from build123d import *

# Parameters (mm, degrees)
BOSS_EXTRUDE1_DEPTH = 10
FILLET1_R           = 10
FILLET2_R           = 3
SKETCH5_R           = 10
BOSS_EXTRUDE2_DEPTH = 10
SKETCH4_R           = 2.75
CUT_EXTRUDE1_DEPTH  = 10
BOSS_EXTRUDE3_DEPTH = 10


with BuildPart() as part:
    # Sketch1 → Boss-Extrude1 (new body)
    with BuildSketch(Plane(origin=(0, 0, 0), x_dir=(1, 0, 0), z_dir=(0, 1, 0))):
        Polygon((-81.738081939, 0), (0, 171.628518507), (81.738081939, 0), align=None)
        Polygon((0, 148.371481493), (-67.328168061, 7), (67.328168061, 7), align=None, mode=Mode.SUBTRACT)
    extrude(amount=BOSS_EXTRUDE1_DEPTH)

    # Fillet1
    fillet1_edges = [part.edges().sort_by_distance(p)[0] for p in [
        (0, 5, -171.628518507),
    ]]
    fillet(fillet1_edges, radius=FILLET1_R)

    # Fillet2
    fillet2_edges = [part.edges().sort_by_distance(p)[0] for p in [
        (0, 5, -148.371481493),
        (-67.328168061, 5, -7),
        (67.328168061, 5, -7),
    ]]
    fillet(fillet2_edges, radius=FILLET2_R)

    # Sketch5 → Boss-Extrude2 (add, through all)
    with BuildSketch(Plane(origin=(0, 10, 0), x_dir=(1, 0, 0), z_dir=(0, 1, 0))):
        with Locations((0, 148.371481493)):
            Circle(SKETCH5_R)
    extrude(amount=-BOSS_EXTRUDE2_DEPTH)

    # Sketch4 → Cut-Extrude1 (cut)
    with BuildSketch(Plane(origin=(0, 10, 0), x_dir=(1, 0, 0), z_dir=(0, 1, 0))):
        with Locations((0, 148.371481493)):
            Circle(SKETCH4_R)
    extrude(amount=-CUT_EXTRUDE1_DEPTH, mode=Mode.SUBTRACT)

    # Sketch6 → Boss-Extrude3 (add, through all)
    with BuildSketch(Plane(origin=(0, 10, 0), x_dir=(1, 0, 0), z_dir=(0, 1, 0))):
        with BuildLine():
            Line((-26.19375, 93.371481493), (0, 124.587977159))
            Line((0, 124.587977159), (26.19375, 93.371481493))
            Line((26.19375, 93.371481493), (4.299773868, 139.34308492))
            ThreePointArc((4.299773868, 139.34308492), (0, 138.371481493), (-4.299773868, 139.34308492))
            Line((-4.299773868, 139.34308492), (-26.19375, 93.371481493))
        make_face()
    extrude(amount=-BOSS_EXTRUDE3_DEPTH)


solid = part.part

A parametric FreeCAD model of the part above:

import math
import FreeCAD as App
import Part
import Sketcher

V = App.Vector
Q = App.Units.Quantity


def edges_at(feature, points):
    """Names of the edges that pass closest to the given points."""
    edges = feature.Shape.Edges
    near = lambda p: min(range(len(edges)), key=lambda i: edges[i].distToShape(Part.Vertex(*p))[0])
    return sorted({f"Edge{near(p) + 1}" for p in points})

doc = App.newDocument("Part")
body = doc.addObject("PartDesign::Body", "Body")

# Sketch on XZ plane
sketch1 = body.newObject("Sketcher::SketchObject", "Sketch")
sketch1.AttachmentSupport = (doc.getObject("XZ_Plane"), [""])
sketch1.MapMode = "FlatFace"
sketch1.addGeometry(Part.LineSegment(V(0, -172, 0), V(-82, 0, 0)), False)
sketch1.addGeometry(Part.LineSegment(V(-82, 0, 0), V(82, 0, 0)), False)
sketch1.addGeometry(Part.LineSegment(V(82, 0, 0), V(0, -172, 0)), False)
sketch1.addGeometry(Part.LineSegment(V(0, -148, 0), V(67, -7, 0)), False)
sketch1.addGeometry(Part.LineSegment(V(67, -7, 0), V(-67, -7, 0)), False)
sketch1.addGeometry(Part.LineSegment(V(-67, -7, 0), V(0, -148, 0)), False)
sketch1.addConstraint(Sketcher.Constraint("Coincident", 0, 2, 1, 1))
sketch1.addConstraint(Sketcher.Constraint("Coincident", 1, 2, 2, 1))
sketch1.addConstraint(Sketcher.Constraint("Coincident", 2, 2, 0, 1))
sketch1.addConstraint(Sketcher.Constraint("Coincident", 3, 2, 4, 1))
sketch1.addConstraint(Sketcher.Constraint("Coincident", 4, 2, 5, 1))
sketch1.addConstraint(Sketcher.Constraint("Coincident", 5, 2, 3, 1))
sketch1.addConstraint(Sketcher.Constraint("Horizontal", 1))
sketch1.addConstraint(Sketcher.Constraint("Horizontal", 4))
sketch1.addConstraint(Sketcher.Constraint("Symmetric", 0, 2, 1, 2, -1, 1))
sketch1.addConstraint(Sketcher.Constraint("PointOnObject", 2, 2, -2))
sketch1.addConstraint(Sketcher.Constraint("PointOnObject", 5, 2, -2))
sketch1.addConstraint(Sketcher.Constraint("Parallel", 2, 3))
sketch1.addConstraint(Sketcher.Constraint("Parallel", 0, 5))
sketch1.addConstraint(Sketcher.Constraint("DistanceY", 3, 2, -1, 1, 7.0))
sketch1.addConstraint(Sketcher.Constraint("Distance", 0, 190.09856))
sketch1.addConstraint(Sketcher.Constraint("Distance", 3, 156.58537))
sketch1.addConstraint(Sketcher.Constraint("DistanceX", 1, 1, 1, 2, 163.476164))
pad1 = body.newObject("PartDesign::Pad", "Pad")
pad1.Profile = sketch1
pad1.Length = 10
pad1.Reversed = True
doc.recompute()

fillet = body.newObject("PartDesign::Fillet", "Fillet")
fillet.Base = (pad1, edges_at(pad1, [(0, 5, -171.629)]))
fillet.Radius = 10
doc.recompute()

fillet2 = body.newObject("PartDesign::Fillet", "Fillet001")
fillet2.Base = (fillet, edges_at(fillet, [(0, 5, -148.371), (-67.328, 5, -7), (67.328, 5, -7)]))
fillet2.Radius = 3

# Sketch on XZ plane
sketch2 = body.newObject("Sketcher::SketchObject", "Sketch001")
sketch2.AttachmentSupport = (doc.getObject("XZ_Plane"), [""])
sketch2.MapMode = "FlatFace"
sketch2.AttachmentOffset = App.Placement(V(0, 0, -10), App.Rotation())
sketch2.addGeometry(Part.Circle(V(0, -148, 0), V(0, 0, 1), 10), False)
sketch2.addConstraint(Sketcher.Constraint("PointOnObject", 0, 3, -2))
sketch2.addConstraint(Sketcher.Constraint("Diameter", 0, 20.0))
sketch2.addConstraint(Sketcher.Constraint("DistanceY", 0, 3, -1, 1, 148.371481))
pad2 = body.newObject("PartDesign::Pad", "Pad001")
pad2.Profile = sketch2
pad2.Type = "UpToLast"

# Sketch on XZ plane
sketch3 = body.newObject("Sketcher::SketchObject", "Sketch002")
sketch3.AttachmentSupport = (doc.getObject("XZ_Plane"), [""])
sketch3.MapMode = "FlatFace"
sketch3.AttachmentOffset = App.Placement(V(0, 0, -10), App.Rotation())
sketch3.addGeometry(Part.Circle(V(0, -148.4, 0), V(0, 0, 1), 2.8), False)
sketch3.addConstraint(Sketcher.Constraint("PointOnObject", 0, 3, -2))
sketch3.addConstraint(Sketcher.Constraint("Diameter", 0, 5.5))
sketch3.addConstraint(Sketcher.Constraint("DistanceY", 0, 3, -1, 1, 148.371481))
pocket1 = body.newObject("PartDesign::Pocket", "Pocket")
pocket1.Profile = sketch3
pocket1.Length = 10
pocket1.Reversed = True

# Sketch on XZ plane
sketch4 = body.newObject("Sketcher::SketchObject", "Sketch003")
sketch4.AttachmentSupport = (doc.getObject("XZ_Plane"), [""])
sketch4.MapMode = "FlatFace"
sketch4.AttachmentOffset = App.Placement(V(0, 0, -10), App.Rotation())
sketch4.addGeometry(Part.LineSegment(V(-26, -93, 0), V(0, -125, 0)), False)
sketch4.addGeometry(Part.LineSegment(V(0, -125, 0), V(26, -93, 0)), False)
sketch4.addGeometry(Part.LineSegment(V(26, -93, 0), V(4, -139, 0)), False)
sketch4.addGeometry(Part.ArcOfCircle(Part.Circle(V(0, -148, 0), V(0, 0, 1), 10), math.radians(65), math.radians(115)), False)
sketch4.addGeometry(Part.LineSegment(V(-4, -139, 0), V(-26, -93, 0)), False)
sketch4.addConstraint(Sketcher.Constraint("Coincident", 0, 2, 1, 1))
sketch4.addConstraint(Sketcher.Constraint("Coincident", 1, 2, 2, 1))
sketch4.addConstraint(Sketcher.Constraint("Coincident", 2, 2, 3, 1))
sketch4.addConstraint(Sketcher.Constraint("Coincident", 3, 2, 4, 1))
sketch4.addConstraint(Sketcher.Constraint("Coincident", 4, 2, 0, 1))
sketch4.addConstraint(Sketcher.Constraint("Symmetric", 2, 2, 3, 2, -2))
sketch4.addConstraint(Sketcher.Constraint("Symmetric", 1, 2, 4, 2, -2))
sketch4.addConstraint(Sketcher.Constraint("PointOnObject", 0, 2, -2))
sketch4.addConstraint(Sketcher.Constraint("Radius", 3, 10.0))
sketch4.addConstraint(Sketcher.Constraint("Angle", 0, Q("-50 deg")))
sketch4.addConstraint(Sketcher.Constraint("DistanceY", 3, 3, 1, 2, 55.0))
sketch4.addConstraint(Sketcher.Constraint("Distance", 2, 50.918901))
sketch4.addConstraint(Sketcher.Constraint("DistanceY", 3, 3, -1, 1, 148.371481))
sketch4.addConstraint(Sketcher.Constraint("DistanceX", -1, 1, 2, 2, 4.299774))
pad3 = body.newObject("PartDesign::Pad", "Pad002")
pad3.Profile = sketch4
pad3.Length = 10

doc.recompute()
